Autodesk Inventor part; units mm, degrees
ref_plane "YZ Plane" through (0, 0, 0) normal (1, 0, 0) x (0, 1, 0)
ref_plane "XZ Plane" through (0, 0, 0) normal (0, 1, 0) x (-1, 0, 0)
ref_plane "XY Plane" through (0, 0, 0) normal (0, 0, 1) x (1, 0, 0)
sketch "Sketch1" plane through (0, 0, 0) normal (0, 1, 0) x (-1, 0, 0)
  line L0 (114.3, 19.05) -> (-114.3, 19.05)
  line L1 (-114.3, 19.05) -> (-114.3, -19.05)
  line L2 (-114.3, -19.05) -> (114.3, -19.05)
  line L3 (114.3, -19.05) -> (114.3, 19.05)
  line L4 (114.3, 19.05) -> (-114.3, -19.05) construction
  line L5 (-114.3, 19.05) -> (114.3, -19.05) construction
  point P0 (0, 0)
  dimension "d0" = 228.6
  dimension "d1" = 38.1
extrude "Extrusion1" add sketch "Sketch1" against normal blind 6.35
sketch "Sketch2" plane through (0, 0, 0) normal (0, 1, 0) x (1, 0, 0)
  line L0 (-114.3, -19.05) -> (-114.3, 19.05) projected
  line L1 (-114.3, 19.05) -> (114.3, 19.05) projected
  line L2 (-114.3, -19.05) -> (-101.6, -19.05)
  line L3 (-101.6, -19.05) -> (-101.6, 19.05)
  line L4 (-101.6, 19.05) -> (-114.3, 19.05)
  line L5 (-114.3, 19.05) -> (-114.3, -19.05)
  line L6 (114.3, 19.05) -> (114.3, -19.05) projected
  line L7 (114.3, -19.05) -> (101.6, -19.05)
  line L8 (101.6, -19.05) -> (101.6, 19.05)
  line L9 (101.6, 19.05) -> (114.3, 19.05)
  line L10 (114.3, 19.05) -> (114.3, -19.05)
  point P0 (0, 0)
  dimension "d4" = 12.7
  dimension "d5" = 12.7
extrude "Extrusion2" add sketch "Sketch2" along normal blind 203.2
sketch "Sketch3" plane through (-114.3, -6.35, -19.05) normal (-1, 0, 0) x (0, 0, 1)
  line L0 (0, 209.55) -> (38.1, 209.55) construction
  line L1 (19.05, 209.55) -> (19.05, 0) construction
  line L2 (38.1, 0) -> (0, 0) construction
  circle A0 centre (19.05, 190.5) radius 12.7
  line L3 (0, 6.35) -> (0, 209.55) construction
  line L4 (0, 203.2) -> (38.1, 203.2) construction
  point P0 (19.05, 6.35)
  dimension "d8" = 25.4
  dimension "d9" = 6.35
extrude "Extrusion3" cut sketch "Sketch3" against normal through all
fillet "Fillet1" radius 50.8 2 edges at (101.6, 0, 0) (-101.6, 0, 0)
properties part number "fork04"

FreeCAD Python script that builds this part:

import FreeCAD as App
import Part
import Sketcher
Q = App.Units.Quantity


def edges_at(feature, points):
    """Names of the edges that pass closest to the given points."""
    edges = feature.Shape.Edges
    near = lambda p: min(range(len(edges)), key=lambda i: edges[i].distToShape(Part.Vertex(*p))[0])
    return sorted({f"Edge{near(p) + 1}" for p in points})

doc = App.newDocument("Part")
body = doc.addObject("PartDesign::Body", "Body")

sketch1 = doc.addObject("Sketcher::SketchObject", "Sketch")
body.addObject(sketch1)
sketch1.AttachmentSupport = (doc.XZ_Plane, [""])
sketch1.MapMode = "FlatFace"
sketch1.addGeometry(Part.LineSegment(App.Vector(-114, -19, 0), App.Vector(-114, 19, 0)), False)
sketch1.addGeometry(Part.LineSegment(App.Vector(-114, 19, 0), App.Vector(114, 19, 0)), False)
sketch1.addGeometry(Part.LineSegment(App.Vector(114, 19, 0), App.Vector(114, -19, 0)), False)
sketch1.addGeometry(Part.LineSegment(App.Vector(114, -19, 0), App.Vector(-114, -19, 0)), False)
sketch1.addConstraint(Sketcher.Constraint("Coincident", 0, 2, 1, 1))
sketch1.addConstraint(Sketcher.Constraint("Coincident", 1, 2, 2, 1))
sketch1.addConstraint(Sketcher.Constraint("Coincident", 2, 2, 3, 1))
sketch1.addConstraint(Sketcher.Constraint("Coincident", 3, 2, 0, 1))
sketch1.addConstraint(Sketcher.Constraint("Vertical", 0))
sketch1.addConstraint(Sketcher.Constraint("Horizontal", 1))
sketch1.addConstraint(Sketcher.Constraint("Vertical", 2))
sketch1.addConstraint(Sketcher.Constraint("Horizontal", 3))
sketch1.addConstraint(Sketcher.Constraint("Symmetric", 0, 2, 2, 2, -1, 1))
sketch1.addConstraint(Sketcher.Constraint("DistanceX", 1, 1, 1, 2, Q("9 in")))
sketch1.addConstraint(Sketcher.Constraint("DistanceY", 0, 1, 0, 2, Q("1.5 in")))
pad1 = doc.addObject("PartDesign::Pad", "Pad")
body.addObject(pad1)
pad1.Profile = sketch1
pad1.Length = Q("0.25 in")

sketch2 = doc.addObject("Sketcher::SketchObject", "Sketch001")
body.addObject(sketch2)
sketch2.AttachmentSupport = (doc.XZ_Plane, [""])
sketch2.MapMode = "FlatFace"
sketch2.addGeometry(Part.LineSegment(App.Vector(114, -19, 0), App.Vector(102, -19, 0)), False)
sketch2.addGeometry(Part.LineSegment(App.Vector(102, -19, 0), App.Vector(102, 19, 0)), False)
sketch2.addGeometry(Part.LineSegment(App.Vector(102, 19, 0), App.Vector(114, 19, 0)), False)
sketch2.addGeometry(Part.LineSegment(App.Vector(114, 19, 0), App.Vector(114, -19, 0)), False)
sketch2.addGeometry(Part.LineSegment(App.Vector(-114, -19, 0), App.Vector(-114, 19, 0)), False)
sketch2.addGeometry(Part.LineSegment(App.Vector(-114, 19, 0), App.Vector(-102, 19, 0)), False)
sketch2.addGeometry(Part.LineSegment(App.Vector(-102, 19, 0), App.Vector(-102, -19, 0)), False)
sketch2.addGeometry(Part.LineSegment(App.Vector(-102, -19, 0), App.Vector(-114, -19, 0)), False)
sketch2.addConstraint(Sketcher.Constraint("Coincident", 0, 2, 1, 1))
sketch2.addConstraint(Sketcher.Constraint("Coincident", 1, 2, 2, 1))
sketch2.addConstraint(Sketcher.Constraint("Coincident", 2, 2, 3, 1))
sketch2.addConstraint(Sketcher.Constraint("Coincident", 3, 2, 0, 1))
sketch2.addConstraint(Sketcher.Constraint("Coincident", 4, 2, 5, 1))
sketch2.addConstraint(Sketcher.Constraint("Coincident", 5, 2, 6, 1))
sketch2.addConstraint(Sketcher.Constraint("Coincident", 6, 2, 7, 1))
sketch2.addConstraint(Sketcher.Constraint("Coincident", 7, 2, 4, 1))
sketch2.addConstraint(Sketcher.Constraint("Horizontal", 0))
sketch2.addConstraint(Sketcher.Constraint("Vertical", 1))
sketch2.addConstraint(Sketcher.Constraint("Horizontal", 2))
sketch2.addConstraint(Sketcher.Constraint("Vertical", 3))
sketch2.addConstraint(Sketcher.Constraint("Vertical", 4))
sketch2.addConstraint(Sketcher.Constraint("Horizontal", 5))
sketch2.addConstraint(Sketcher.Constraint("Vertical", 6))
sketch2.addConstraint(Sketcher.Constraint("Horizontal", 7))
sketch2.addConstraint(Sketcher.Constraint("Symmetric", 3, 2, 4, 2, -1, 1))
sketch2.addConstraint(Sketcher.Constraint("Symmetric", 1, 2, 6, 2, -1, 1))
sketch2.addConstraint(Sketcher.Constraint("Horizontal", 2, 2, 4, 2))
sketch2.addConstraint(Sketcher.Constraint("DistanceX", 0, 2, 0, 1, Q("0.5 in")))
sketch2.addConstraint(Sketcher.Constraint("DistanceY", 1, 1, 1, 2, Q("1.5 in")))
sketch2.addConstraint(Sketcher.Constraint("DistanceX", -1, 1, 0, 2, Q("4 in")))
pad2 = doc.addObject("PartDesign::Pad", "Pad001")
body.addObject(pad2)
pad2.Profile = sketch2
pad2.Length = Q("8 in")
pad2.Reversed = True

sketch3 = doc.addObject("Sketcher::SketchObject", "Sketch002")
body.addObject(sketch3)
sketch3.AttachmentSupport = (doc.YZ_Plane, [""])
sketch3.MapMode = "FlatFace"
sketch3.AttachmentOffset = App.Placement(App.Vector(0, 0, -4.5 * 25.4), App.Rotation())
sketch3.addGeometry(Part.Circle(App.Vector(184, 0, 0), App.Vector(0, 0, 1), 13), False)
sketch3.addConstraint(Sketcher.Constraint("PointOnObject", 0, 3, -1))
sketch3.addConstraint(Sketcher.Constraint("Diameter", 0, Q("1 in")))
sketch3.addConstraint(Sketcher.Constraint("DistanceX", -1, 1, 0, 3, Q("7.25 in")))
pocket1 = doc.addObject("PartDesign::Pocket", "Pocket")
body.addObject(pocket1)
pocket1.Profile = sketch3
pocket1.Type = "ThroughAll"
pocket1.Reversed = True
doc.recompute()

fillet = doc.addObject("PartDesign::Fillet", "Fillet")
body.addObject(fillet)
fillet.Base = (pocket1, edges_at(pocket1, [(101.6, 0, 0), (-101.6, 0, 0)]))
fillet.Radius = Q("2 in")

doc.recompute()
